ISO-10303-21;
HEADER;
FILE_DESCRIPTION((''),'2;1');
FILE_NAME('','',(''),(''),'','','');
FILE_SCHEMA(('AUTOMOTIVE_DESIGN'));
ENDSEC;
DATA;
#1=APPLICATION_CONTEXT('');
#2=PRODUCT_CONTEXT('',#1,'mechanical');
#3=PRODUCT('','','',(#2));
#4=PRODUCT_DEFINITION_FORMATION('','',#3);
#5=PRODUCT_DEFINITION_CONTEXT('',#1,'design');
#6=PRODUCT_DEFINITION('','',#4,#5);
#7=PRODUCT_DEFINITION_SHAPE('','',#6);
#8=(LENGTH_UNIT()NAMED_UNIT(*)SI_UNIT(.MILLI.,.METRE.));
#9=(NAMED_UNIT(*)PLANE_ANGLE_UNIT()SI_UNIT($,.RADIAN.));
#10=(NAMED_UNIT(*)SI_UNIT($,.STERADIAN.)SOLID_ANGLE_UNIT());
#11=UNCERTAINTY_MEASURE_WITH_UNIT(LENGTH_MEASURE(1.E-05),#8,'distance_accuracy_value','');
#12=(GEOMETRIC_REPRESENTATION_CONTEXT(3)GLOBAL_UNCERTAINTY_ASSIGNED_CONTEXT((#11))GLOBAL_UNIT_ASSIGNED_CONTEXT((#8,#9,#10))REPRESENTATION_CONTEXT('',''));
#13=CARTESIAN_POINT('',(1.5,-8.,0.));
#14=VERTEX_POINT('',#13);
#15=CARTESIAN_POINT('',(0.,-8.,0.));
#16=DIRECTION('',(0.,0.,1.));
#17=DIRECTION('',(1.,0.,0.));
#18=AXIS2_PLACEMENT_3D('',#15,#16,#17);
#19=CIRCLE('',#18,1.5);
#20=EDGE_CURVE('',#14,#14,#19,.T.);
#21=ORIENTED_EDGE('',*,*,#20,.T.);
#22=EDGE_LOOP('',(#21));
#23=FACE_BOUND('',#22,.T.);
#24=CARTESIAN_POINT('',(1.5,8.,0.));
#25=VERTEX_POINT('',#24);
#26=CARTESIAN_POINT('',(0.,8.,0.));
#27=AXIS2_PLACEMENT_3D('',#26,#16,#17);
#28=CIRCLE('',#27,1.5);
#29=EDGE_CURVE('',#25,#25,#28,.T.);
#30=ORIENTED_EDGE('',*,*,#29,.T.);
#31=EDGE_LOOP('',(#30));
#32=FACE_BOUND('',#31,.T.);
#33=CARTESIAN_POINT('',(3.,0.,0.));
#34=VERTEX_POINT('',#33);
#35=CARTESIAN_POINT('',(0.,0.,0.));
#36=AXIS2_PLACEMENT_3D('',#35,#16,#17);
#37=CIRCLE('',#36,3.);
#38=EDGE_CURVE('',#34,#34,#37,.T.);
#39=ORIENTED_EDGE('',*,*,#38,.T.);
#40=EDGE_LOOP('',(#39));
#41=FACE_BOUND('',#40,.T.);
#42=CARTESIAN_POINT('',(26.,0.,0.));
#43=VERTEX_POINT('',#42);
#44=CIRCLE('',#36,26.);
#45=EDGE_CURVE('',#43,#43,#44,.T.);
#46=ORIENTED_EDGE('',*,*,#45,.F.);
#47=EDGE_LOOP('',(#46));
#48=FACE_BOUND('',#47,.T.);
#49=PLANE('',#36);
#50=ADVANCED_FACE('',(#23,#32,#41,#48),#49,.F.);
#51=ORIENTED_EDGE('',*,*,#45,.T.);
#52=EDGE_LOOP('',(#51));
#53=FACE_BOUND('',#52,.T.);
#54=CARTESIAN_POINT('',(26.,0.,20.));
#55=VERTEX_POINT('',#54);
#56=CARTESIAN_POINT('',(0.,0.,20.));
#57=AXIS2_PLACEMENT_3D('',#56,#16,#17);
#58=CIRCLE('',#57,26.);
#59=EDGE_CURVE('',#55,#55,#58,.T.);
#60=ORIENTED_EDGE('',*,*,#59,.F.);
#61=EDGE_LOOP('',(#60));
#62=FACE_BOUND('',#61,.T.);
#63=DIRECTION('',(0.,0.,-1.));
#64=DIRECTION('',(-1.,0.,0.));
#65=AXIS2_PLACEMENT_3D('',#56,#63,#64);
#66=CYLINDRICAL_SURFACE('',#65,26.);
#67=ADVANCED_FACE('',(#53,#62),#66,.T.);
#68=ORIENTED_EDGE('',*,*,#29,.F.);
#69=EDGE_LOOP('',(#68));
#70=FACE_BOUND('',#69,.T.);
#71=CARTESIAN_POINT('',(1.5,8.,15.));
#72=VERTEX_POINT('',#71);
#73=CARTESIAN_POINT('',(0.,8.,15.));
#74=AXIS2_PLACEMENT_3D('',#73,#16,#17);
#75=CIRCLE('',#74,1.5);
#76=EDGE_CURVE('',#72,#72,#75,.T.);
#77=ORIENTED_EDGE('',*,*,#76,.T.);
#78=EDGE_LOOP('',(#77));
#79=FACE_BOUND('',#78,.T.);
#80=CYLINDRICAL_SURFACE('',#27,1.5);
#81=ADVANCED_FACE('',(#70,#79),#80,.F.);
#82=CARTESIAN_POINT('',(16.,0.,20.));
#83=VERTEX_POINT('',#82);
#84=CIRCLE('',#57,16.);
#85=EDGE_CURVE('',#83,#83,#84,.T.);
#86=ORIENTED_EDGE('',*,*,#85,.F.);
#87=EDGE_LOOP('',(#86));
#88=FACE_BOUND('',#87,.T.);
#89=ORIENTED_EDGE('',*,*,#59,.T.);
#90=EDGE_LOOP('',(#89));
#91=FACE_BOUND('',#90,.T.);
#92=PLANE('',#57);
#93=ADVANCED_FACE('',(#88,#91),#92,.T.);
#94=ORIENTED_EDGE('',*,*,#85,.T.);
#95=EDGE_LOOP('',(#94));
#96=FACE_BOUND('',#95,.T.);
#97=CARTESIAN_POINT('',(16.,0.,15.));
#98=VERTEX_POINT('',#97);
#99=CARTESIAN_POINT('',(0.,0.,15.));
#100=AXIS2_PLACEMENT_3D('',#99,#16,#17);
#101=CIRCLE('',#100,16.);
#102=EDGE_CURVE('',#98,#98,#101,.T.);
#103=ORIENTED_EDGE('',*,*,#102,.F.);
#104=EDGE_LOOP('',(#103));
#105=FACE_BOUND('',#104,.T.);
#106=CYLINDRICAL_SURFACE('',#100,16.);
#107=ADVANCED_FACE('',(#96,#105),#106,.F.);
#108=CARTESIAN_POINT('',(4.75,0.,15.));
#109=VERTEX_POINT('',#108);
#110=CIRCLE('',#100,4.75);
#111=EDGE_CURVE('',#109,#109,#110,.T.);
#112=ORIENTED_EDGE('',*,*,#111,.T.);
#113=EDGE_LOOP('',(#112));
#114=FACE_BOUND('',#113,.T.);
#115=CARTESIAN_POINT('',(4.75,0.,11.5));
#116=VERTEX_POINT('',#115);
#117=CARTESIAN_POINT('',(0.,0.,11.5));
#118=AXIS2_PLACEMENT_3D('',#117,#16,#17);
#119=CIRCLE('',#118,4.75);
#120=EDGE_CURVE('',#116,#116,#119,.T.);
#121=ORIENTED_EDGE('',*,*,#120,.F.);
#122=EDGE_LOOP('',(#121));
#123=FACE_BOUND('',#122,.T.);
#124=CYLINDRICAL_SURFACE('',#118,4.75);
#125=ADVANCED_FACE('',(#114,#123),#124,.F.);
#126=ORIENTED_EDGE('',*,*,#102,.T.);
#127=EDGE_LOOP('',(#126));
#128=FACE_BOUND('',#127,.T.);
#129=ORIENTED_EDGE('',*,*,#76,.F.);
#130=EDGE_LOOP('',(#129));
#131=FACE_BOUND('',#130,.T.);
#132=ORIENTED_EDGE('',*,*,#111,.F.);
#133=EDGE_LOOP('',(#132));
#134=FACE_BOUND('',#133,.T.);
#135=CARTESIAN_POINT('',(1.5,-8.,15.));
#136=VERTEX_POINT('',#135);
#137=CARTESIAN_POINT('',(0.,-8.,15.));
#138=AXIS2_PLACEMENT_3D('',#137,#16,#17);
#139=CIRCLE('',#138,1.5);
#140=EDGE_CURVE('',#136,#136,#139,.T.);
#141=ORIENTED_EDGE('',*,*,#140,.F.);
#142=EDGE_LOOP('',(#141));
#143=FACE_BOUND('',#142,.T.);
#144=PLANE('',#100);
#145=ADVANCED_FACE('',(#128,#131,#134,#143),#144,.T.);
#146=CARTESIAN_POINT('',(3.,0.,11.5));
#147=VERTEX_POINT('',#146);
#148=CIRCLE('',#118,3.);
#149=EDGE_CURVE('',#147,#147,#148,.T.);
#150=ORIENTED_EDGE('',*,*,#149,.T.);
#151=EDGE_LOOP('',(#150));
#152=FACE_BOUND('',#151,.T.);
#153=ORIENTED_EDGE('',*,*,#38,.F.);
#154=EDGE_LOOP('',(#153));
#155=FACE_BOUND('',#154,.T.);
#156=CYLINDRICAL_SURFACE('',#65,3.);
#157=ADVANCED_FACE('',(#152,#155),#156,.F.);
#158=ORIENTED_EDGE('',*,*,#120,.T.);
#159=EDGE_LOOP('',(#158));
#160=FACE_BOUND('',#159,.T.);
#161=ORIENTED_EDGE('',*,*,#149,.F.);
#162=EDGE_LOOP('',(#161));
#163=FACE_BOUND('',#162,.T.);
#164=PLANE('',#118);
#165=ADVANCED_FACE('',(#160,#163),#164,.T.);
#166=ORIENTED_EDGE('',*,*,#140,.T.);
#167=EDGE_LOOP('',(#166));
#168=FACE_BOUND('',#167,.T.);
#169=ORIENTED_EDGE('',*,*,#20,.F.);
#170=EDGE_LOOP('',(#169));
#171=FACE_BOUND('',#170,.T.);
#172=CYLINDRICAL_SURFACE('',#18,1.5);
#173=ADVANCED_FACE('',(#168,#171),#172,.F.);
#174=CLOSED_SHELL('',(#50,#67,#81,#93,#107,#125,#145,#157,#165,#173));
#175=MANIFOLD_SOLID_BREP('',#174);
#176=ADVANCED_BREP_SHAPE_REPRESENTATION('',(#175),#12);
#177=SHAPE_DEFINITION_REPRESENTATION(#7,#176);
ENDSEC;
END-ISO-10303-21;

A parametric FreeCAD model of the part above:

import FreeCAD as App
import Part
import Sketcher
from FreeCAD import Vector
Q = App.Units.Quantity

doc = App.newDocument("Part")
body = doc.addObject("PartDesign::Body", "Body")

sketch1 = body.newObject("Sketcher::SketchObject", "Sketch")
sketch1.AttachmentSupport = (doc.getObject("XY_Plane"), [""])
sketch1.MapMode = "FlatFace"
sketch1.addGeometry([
    Part.Circle(Vector(0, 0, 0), Vector(0, 0, 1), 26),
    Part.Circle(Vector(0, 0, 0), Vector(0, 0, 1), 3),
], False)
sketch1.addConstraint([
    Sketcher.Constraint("Coincident", 0, 3, -1, 1),
    Sketcher.Constraint("Coincident", 1, 3, -1, 1),
    Sketcher.Constraint("Diameter", 0, Q("52 mm")),
    Sketcher.Constraint("Diameter", 1, Q("6 mm")),
])
pad1 = body.newObject("PartDesign::Pad", "Pad")
pad1.Profile = sketch1
pad1.Length = 20

sketch2 = body.newObject("Sketcher::SketchObject", "Sketch001")
sketch2.AttachmentSupport = (doc.getObject("XY_Plane"), [""])
sketch2.MapMode = "FlatFace"
sketch2.AttachmentOffset = App.Placement(Vector(0, 0, 20), App.Rotation())
sketch2.addGeometry(Part.Circle(Vector(0, 0, 0), Vector(0, 0, 1), 16), False)
sketch2.addConstraint([
    Sketcher.Constraint("Coincident", 0, 3, -1, 1),
    Sketcher.Constraint("Diameter", 0, Q("32 mm")),
])
pocket1 = body.newObject("PartDesign::Pocket", "Pocket")
pocket1.Profile = sketch2
pocket1.Length = 5

sketch3 = body.newObject("Sketcher::SketchObject", "Sketch002")
sketch3.AttachmentSupport = (doc.getObject("XY_Plane"), [""])
sketch3.MapMode = "FlatFace"
sketch3.AttachmentOffset = App.Placement(Vector(0, 0, 15), App.Rotation())
sketch3.addGeometry(Part.Circle(Vector(0, 0, 0), Vector(0, 0, 1), 4.8), False)
sketch3.addConstraint([
    Sketcher.Constraint("Coincident", 0, 3, -1, 1),
    Sketcher.Constraint("Diameter", 0, Q("9.5 mm")),
])
pocket2 = body.newObject("PartDesign::Pocket", "Pocket001")
pocket2.Profile = sketch3
pocket2.Length = 3.5

sketch4 = body.newObject("Sketcher::SketchObject", "Sketch003")
sketch4.AttachmentSupport = (doc.getObject("XY_Plane"), [""])
sketch4.MapMode = "FlatFace"
sketch4.AttachmentOffset = App.Placement(Vector(0, 0, 15), App.Rotation())
sketch4.addGeometry([
    Part.Circle(Vector(0, 8, 0), Vector(0, 0, 1), 1.5),
    Part.Circle(Vector(0, -8, 0), Vector(0, 0, 1), 1.5),
], False)
sketch4.addConstraint([
    Sketcher.Constraint("Equal", 0, 1),
    Sketcher.Constraint("Symmetric", 0, 3, 1, 3, -1, 1),
    Sketcher.Constraint("PointOnObject", 0, 3, -2),
    Sketcher.Constraint("Diameter", 0, Q("3 mm")),
    Sketcher.Constraint("DistanceY", -1, 1, 0, 3, Q("8 mm")),
])
pocket3 = body.newObject("PartDesign::Pocket", "Pocket002")
pocket3.Profile = sketch4
pocket3.Type = "ThroughAll"

doc.recompute()
